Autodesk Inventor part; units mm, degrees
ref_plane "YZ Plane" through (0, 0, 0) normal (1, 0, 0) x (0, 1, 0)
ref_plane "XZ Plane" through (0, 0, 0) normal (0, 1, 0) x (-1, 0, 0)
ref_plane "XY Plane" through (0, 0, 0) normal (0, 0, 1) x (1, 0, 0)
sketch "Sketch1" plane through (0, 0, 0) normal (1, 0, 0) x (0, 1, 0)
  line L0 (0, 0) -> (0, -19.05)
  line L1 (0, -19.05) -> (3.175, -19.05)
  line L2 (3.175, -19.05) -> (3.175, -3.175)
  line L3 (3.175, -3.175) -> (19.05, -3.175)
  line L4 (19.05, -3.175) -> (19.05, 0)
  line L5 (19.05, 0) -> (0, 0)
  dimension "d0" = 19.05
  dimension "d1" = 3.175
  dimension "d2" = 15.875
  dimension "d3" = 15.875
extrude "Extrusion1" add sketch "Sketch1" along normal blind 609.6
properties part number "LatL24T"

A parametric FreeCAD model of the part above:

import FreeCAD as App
import Part
import Sketcher

V = App.Vector
Q = App.Units.Quantity

doc = App.newDocument("Part")
params = doc.addObject("Spreadsheet::Sheet", "Params")
for row, (alias, value) in enumerate([
    ("sketch1_width", "0.75 in"),
    ("sketch1_width2", "0.125 in"),
    ("pad1_length", "24 in"),
], start=1):
    params.set(f"A{row}", alias)
    params.set(f"B{row}", "=" + value)
    params.setAlias(f"B{row}", alias)

body = doc.addObject("PartDesign::Body", "Body")

# Sketch on YZ plane
sketch1 = doc.addObject("Sketcher::SketchObject", "Sketch")
body.addObject(sketch1)
sketch1.AttachmentSupport = (doc.YZ_Plane, [""])
sketch1.MapMode = "FlatFace"
sketch1.addGeometry([
    Part.LineSegment(V(19.1, 0, 0), V(0, 0, 0)),  # 0
    Part.LineSegment(V(0, 0, 0), V(0, -19.1, 0)),  # 1
    Part.LineSegment(V(0, -19.1, 0), V(3.2, -19.1, 0)),  # 2
    Part.LineSegment(V(3.2, -19.1, 0), V(3.2, -3.2, 0)),  # 3
    Part.LineSegment(V(3.2, -3.2, 0), V(19.1, -3.2, 0)),  # 4
    Part.LineSegment(V(19.1, -3.2, 0), V(19.1, 0, 0)),  # 5
], False)
sketch1.addConstraint([
    Sketcher.Constraint("Coincident", 0, 2, 1, 1),
    Sketcher.Constraint("Coincident", 1, 2, 2, 1),
    Sketcher.Constraint("Coincident", 2, 2, 3, 1),
    Sketcher.Constraint("Coincident", 3, 2, 4, 1),
    Sketcher.Constraint("Coincident", 4, 2, 5, 1),
    Sketcher.Constraint("Coincident", 5, 2, 0, 1),
    Sketcher.Constraint("Horizontal", 0),
    Sketcher.Constraint("Vertical", 1),
    Sketcher.Constraint("Horizontal", 2),
    Sketcher.Constraint("Vertical", 3),
    Sketcher.Constraint("Horizontal", 4),
    Sketcher.Constraint("Vertical", 5),
    Sketcher.Constraint("Coincident", 0, 2, -1, 1),
    Sketcher.Constraint("Equal", 0, 1),
    Sketcher.Constraint("Equal", 4, 3),
    Sketcher.Constraint("DistanceX", 0, 2, 0, 1, Q("0.75 in")),
    Sketcher.Constraint("DistanceX", 2, 1, 2, 2, Q("0.125 in")),
])
sketch1.setExpression("Constraints[15]", "Params.sketch1_width")
sketch1.setExpression("Constraints[16]", "Params.sketch1_width2")
pad1 = doc.addObject("PartDesign::Pad", "Pad")
body.addObject(pad1)
pad1.Profile = sketch1
pad1.setExpression("Length", "Params.pad1_length")

doc.recompute()
